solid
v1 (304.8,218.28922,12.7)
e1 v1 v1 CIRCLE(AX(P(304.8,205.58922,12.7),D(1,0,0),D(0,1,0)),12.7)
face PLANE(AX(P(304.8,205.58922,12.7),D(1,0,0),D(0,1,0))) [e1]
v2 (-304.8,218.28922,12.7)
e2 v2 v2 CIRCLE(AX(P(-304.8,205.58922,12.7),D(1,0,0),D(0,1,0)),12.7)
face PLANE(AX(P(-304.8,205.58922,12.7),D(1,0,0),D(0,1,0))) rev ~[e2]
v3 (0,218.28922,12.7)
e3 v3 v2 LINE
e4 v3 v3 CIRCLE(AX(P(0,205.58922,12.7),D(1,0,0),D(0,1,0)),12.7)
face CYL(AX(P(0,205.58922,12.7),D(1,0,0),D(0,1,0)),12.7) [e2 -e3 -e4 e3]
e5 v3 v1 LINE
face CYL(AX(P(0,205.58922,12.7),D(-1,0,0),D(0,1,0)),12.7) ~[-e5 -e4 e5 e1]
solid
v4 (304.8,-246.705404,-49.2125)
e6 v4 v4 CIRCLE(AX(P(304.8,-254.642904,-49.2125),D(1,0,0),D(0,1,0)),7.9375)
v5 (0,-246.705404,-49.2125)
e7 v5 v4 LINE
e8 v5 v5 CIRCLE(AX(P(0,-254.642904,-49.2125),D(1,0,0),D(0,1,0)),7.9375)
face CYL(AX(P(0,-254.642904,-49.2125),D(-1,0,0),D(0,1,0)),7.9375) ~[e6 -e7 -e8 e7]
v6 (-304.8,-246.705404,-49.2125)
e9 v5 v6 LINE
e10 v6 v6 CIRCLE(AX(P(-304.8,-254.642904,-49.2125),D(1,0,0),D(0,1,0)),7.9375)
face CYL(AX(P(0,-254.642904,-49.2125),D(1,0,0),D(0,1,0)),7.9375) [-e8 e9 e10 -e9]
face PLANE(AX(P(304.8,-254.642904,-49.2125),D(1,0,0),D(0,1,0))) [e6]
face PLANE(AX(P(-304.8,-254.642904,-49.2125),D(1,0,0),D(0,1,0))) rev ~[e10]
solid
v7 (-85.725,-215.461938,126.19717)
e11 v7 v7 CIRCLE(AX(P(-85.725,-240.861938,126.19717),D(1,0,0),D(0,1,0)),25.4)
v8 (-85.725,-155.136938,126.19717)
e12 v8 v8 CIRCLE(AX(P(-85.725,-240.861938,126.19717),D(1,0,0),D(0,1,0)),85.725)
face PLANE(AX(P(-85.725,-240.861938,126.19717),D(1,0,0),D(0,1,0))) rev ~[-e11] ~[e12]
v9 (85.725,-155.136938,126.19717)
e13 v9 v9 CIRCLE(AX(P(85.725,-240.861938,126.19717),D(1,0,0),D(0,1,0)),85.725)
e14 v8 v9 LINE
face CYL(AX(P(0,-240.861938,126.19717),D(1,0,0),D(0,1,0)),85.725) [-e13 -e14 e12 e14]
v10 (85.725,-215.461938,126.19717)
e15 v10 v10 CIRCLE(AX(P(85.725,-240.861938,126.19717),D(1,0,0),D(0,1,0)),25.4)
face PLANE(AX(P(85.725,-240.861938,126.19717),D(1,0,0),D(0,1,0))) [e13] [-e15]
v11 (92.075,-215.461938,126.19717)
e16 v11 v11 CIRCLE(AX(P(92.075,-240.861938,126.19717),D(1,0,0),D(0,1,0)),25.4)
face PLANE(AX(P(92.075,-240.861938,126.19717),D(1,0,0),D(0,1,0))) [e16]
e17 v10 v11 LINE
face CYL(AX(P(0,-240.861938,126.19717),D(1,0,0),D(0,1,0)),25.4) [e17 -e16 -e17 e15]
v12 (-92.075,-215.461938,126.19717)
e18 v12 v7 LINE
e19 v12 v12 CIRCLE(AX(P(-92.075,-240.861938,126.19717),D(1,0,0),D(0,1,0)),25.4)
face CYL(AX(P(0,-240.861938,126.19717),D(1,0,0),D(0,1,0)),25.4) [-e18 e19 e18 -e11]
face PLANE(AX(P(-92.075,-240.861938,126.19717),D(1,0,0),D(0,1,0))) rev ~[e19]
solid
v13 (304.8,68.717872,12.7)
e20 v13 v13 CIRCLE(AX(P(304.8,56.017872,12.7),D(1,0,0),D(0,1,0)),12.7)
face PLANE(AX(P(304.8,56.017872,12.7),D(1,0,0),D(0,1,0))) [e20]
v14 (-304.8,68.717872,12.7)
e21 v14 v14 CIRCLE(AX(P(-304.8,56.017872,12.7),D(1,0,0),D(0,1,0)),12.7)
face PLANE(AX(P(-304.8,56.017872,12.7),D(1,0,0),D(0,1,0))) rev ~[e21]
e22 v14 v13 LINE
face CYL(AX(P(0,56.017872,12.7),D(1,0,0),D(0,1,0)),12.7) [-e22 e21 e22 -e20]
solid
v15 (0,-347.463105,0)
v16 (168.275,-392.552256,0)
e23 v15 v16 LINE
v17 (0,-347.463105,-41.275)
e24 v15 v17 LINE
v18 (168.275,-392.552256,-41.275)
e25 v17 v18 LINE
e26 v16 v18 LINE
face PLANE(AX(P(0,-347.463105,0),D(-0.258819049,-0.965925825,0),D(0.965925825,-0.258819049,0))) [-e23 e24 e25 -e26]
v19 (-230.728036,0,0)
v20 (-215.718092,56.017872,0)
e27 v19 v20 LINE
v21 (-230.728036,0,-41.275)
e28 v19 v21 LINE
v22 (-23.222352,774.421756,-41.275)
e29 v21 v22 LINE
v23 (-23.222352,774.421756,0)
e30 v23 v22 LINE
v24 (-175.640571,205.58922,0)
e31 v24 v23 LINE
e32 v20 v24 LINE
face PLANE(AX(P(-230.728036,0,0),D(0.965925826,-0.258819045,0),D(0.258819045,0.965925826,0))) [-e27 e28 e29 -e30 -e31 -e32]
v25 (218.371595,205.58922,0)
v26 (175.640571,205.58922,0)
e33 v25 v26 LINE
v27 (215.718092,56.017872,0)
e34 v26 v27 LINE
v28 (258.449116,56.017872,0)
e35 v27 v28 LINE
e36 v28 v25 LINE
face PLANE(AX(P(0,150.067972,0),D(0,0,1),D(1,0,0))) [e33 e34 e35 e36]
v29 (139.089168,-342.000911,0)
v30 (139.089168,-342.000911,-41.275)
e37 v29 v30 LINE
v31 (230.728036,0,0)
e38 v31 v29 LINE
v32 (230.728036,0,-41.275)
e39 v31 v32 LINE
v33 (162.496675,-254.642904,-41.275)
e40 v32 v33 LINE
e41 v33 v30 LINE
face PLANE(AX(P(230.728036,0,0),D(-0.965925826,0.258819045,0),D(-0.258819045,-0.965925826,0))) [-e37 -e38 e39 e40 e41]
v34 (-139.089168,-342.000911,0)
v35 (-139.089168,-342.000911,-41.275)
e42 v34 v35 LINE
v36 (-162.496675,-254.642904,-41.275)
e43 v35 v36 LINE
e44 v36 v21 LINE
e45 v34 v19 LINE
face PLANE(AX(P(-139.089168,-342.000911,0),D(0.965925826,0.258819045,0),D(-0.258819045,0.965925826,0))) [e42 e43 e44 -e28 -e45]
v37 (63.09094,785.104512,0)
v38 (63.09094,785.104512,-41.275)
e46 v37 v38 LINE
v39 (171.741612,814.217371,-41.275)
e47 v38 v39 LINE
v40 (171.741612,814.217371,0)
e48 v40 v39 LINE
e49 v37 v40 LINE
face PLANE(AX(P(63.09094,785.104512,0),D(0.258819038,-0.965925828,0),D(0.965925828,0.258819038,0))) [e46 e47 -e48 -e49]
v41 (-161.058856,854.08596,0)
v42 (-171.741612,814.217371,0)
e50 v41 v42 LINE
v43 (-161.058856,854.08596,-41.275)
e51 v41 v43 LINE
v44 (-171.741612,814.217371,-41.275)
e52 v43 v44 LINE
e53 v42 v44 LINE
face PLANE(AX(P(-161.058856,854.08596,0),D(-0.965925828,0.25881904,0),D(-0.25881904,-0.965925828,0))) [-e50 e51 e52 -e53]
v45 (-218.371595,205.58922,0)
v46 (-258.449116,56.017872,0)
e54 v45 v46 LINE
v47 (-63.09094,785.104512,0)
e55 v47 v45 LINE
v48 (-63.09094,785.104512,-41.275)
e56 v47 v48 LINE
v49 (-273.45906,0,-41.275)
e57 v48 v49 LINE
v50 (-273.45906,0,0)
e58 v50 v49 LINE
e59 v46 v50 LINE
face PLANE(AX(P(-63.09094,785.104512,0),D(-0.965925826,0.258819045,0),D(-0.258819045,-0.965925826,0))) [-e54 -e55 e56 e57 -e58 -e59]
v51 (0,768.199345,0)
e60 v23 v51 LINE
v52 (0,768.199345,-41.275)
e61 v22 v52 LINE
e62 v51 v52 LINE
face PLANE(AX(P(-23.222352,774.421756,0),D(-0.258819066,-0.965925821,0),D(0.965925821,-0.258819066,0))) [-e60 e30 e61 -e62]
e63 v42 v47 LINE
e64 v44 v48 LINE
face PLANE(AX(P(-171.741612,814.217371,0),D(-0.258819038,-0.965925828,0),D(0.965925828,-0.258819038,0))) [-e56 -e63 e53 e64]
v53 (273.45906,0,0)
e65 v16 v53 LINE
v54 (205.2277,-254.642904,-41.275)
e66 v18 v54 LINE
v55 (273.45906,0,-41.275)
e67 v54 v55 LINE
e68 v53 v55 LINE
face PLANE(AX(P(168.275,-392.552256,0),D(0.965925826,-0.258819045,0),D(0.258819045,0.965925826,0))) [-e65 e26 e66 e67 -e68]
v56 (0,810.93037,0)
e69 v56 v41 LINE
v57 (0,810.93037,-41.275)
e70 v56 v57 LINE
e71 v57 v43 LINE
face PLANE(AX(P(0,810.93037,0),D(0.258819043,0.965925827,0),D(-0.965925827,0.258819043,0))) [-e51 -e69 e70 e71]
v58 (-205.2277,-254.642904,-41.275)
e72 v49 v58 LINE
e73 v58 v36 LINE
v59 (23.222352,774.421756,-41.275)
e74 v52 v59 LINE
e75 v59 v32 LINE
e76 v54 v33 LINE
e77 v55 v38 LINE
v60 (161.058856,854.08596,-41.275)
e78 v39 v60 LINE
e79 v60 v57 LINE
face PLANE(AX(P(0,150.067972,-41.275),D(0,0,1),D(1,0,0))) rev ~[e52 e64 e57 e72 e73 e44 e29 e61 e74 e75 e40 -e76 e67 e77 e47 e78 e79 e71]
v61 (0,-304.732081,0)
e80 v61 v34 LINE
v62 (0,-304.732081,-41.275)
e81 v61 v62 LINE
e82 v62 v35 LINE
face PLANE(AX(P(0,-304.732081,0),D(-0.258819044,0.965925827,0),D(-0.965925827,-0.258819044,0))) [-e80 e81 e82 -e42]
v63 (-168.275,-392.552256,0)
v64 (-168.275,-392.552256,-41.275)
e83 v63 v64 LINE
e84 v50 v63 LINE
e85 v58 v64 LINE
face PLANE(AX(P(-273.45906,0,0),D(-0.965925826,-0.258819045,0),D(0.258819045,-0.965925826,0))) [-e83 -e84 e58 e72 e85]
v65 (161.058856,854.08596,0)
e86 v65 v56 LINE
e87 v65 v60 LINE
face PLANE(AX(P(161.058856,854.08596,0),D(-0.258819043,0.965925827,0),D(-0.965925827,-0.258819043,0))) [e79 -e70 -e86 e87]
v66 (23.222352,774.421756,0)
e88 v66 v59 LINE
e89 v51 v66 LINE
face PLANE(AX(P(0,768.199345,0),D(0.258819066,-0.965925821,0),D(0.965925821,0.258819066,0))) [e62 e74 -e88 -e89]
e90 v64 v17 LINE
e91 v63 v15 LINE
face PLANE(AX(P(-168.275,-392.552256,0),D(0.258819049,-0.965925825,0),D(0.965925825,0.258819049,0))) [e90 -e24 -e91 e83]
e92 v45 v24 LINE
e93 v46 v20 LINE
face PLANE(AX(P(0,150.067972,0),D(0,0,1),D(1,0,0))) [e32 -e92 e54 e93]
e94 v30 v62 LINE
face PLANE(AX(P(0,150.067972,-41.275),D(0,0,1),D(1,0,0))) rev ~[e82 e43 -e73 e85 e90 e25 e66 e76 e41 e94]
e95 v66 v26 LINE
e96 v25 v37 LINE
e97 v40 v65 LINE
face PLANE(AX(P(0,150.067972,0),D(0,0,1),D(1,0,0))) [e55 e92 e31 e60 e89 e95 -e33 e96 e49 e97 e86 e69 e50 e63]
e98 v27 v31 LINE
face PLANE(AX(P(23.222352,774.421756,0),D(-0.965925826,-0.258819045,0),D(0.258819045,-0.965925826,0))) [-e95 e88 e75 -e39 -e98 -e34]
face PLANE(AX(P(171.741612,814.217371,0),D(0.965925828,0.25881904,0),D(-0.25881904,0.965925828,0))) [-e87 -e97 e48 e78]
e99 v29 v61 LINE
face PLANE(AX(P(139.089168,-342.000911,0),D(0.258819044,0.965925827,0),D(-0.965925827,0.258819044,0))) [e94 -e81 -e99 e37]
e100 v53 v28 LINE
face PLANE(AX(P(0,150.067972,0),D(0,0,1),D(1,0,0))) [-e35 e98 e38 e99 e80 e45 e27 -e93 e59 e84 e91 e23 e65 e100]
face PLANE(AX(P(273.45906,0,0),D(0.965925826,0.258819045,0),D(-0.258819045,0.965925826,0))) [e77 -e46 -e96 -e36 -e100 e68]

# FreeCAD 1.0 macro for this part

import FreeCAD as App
import Part
import Sketcher

V = App.Vector
Q = App.Units.Quantity

doc = App.newDocument("Part")
params = doc.addObject("Spreadsheet::Sheet", "Params")
for row, (alias, value) in enumerate([
    ("sketch1_length", "16 in"),
    ("sketch1_length2", "32 in"),
    ("sketch1_length3", "1.625 in"),
    ("pad1_length", "1.625 in"),
    ("sketch2_diameter", "1 in"),
    ("sketch2_diameter2", "0.625 in"),
    ("pad2_length", "24 in"),
    ("sketch3_diameter", "2 in"),
    ("sketch3_diameter2", "6.75 in"),
    ("pad3_length", "6.75 in"),
    ("sketch4_diameter", "2 in"),
    ("pad4_length", "7.25 in"),
], start=1):
    params.set(f"A{row}", alias)
    params.set(f"B{row}", "=" + value)
    params.setAlias(f"B{row}", alias)

body = doc.addObject("PartDesign::Body", "Body")
body.AllowCompound = True

sketch1 = body.newObject("Sketcher::SketchObject", "Sketch")
sketch1.AttachmentSupport = (doc.getObject("XY_Plane"), [""])
sketch1.MapMode = "FlatFace"
sketch1.addGeometry([
    Part.LineSegment(V(0, -347.463105, 0), V(168.275, -392.552256, 0)),
    Part.LineSegment(V(168.275, -392.552256, 0), V(273.45906, 0, 0)),
    Part.LineSegment(V(273.45906, 0, 0), V(63.09094, 785.104512, 0)),
    Part.LineSegment(V(63.09094, 785.104512, 0), V(171.741612, 814.217371, 0)),
    Part.LineSegment(V(171.741612, 814.217371, 0), V(161.058856, 854.08596, 0)),
    Part.LineSegment(V(161.058856, 854.08596, 0), V(0, 810.93037, 0)),
    Part.LineSegment(V(0, 810.93037, 0), V(-161.058856, 854.08596, 0)),
    Part.LineSegment(V(-161.058856, 854.08596, 0), V(-171.741612, 814.217371, 0)),
    Part.LineSegment(V(-171.741612, 814.217371, 0), V(-63.09094, 785.104512, 0)),
    Part.LineSegment(V(-63.09094, 785.104512, 0), V(-273.45906, 0, 0)),
    Part.LineSegment(V(-273.45906, 0, 0), V(-168.275, -392.552256, 0)),
    Part.LineSegment(V(-168.275, -392.552256, 0), V(0, -347.463105, 0)),
    Part.LineSegment(V(23.222352, 774.421756, 0), V(230.728036, 0, 0)),
    Part.LineSegment(V(230.728036, 0, 0), V(139.089168, -342.000911, 0)),
    Part.LineSegment(V(139.089168, -342.000911, 0), V(0, -304.732081, 0)),
    Part.LineSegment(V(0, -304.732081, 0), V(-139.089168, -342.000911, 0)),
    Part.LineSegment(V(-139.089168, -342.000911, 0), V(-230.728036, 0, 0)),
    Part.LineSegment(V(-230.728036, 0, 0), V(-23.222352, 774.421756, 0)),
    Part.LineSegment(V(-23.222352, 774.421756, 0), V(0, 768.199345, 0)),
    Part.LineSegment(V(0, 768.199345, 0), V(23.222352, 774.421756, 0)),
], False)
sketch1.addConstraint([
    Sketcher.Constraint("Coincident", 0, 2, 1, 1),
    Sketcher.Constraint("Coincident", 1, 2, 2, 1),
    Sketcher.Constraint("Coincident", 2, 2, 3, 1),
    Sketcher.Constraint("Coincident", 3, 2, 4, 1),
    Sketcher.Constraint("Coincident", 4, 2, 5, 1),
    Sketcher.Constraint("Coincident", 5, 2, 6, 1),
    Sketcher.Constraint("Coincident", 6, 2, 7, 1),
    Sketcher.Constraint("Coincident", 7, 2, 8, 1),
    Sketcher.Constraint("Coincident", 8, 2, 9, 1),
    Sketcher.Constraint("Coincident", 9, 2, 10, 1),
    Sketcher.Constraint("Coincident", 10, 2, 11, 1),
    Sketcher.Constraint("Coincident", 11, 2, 0, 1),
    Sketcher.Constraint("Coincident", 12, 2, 13, 1),
    Sketcher.Constraint("Coincident", 13, 2, 14, 1),
    Sketcher.Constraint("Coincident", 14, 2, 15, 1),
    Sketcher.Constraint("Coincident", 15, 2, 16, 1),
    Sketcher.Constraint("Coincident", 16, 2, 17, 1),
    Sketcher.Constraint("Coincident", 17, 2, 18, 1),
    Sketcher.Constraint("Coincident", 18, 2, 19, 1),
    Sketcher.Constraint("Coincident", 19, 2, 12, 1),
    Sketcher.Constraint("Symmetric", 1, 2, 9, 2, -1, 1),
    Sketcher.Constraint("Symmetric", 12, 2, 16, 2, -1, 1),
    Sketcher.Constraint("Symmetric", 4, 2, 6, 2, -2),
    Sketcher.Constraint("Symmetric", 3, 2, 7, 2, -2),
    Sketcher.Constraint("Symmetric", 2, 2, 8, 2, -2),
    Sketcher.Constraint("Symmetric", 0, 2, 10, 2, -2),
    Sketcher.Constraint("Symmetric", 13, 2, 15, 2, -2),
    Sketcher.Constraint("Symmetric", 17, 2, 19, 2, -2),
    Sketcher.Constraint("PointOnObject", 1, 2, -1),
    Sketcher.Constraint("PointOnObject", 5, 2, -2),
    Sketcher.Constraint("PointOnObject", 11, 2, -2),
    Sketcher.Constraint("PointOnObject", 12, 2, -1),
    Sketcher.Constraint("PointOnObject", 14, 2, -2),
    Sketcher.Constraint("PointOnObject", 18, 2, -2),
    Sketcher.Constraint("Perpendicular", 0, 1),
    Sketcher.Constraint("Perpendicular", 2, 3),
    Sketcher.Constraint("Perpendicular", 3, 4),
    Sketcher.Constraint("Perpendicular", 4, 5),
    Sketcher.Constraint("Perpendicular", 1, 6),
    Sketcher.Constraint("Perpendicular", 11, 12),
    Sketcher.Constraint("Parallel", 9, 13),
    Sketcher.Constraint("Perpendicular", 13, 14),
    Sketcher.Constraint("Perpendicular", 17, 18),
    Sketcher.Constraint("Distance", 1, Q("16 in")),
    Sketcher.Constraint("Distance", 2, Q("32 in")),
    Sketcher.Constraint("Angle", 0, Q("-15 deg")),
    Sketcher.Constraint("DistanceX", 9, 2, 2, 2, Q("13.25 in")),
    Sketcher.Constraint("Distance", 4, Q("1.625 in")),
    Sketcher.Constraint("DistanceX", -1, 1, 4, 2, Q("6.3408998 in")),
    Sketcher.Constraint("Distance", 18, Q("24.041548 mm")),
    Sketcher.Constraint("DistanceX", -1, 1, 13, 2, Q("139.089168 mm")),
    Sketcher.Constraint("DistanceY", 13, 2, -1, 1, Q("342.000911 mm")),
])
sketch1.setExpression("Constraints[43]", "Params.sketch1_length")
sketch1.setExpression("Constraints[44]", "Params.sketch1_length2")
sketch1.setExpression("Constraints[47]", "Params.sketch1_length3")
pad1 = body.newObject("PartDesign::Pad", "Pad")
pad1.Profile = sketch1
pad1.setExpression("Length", "Params.pad1_length")
pad1.Reversed = True

sketch2 = body.newObject("Sketcher::SketchObject", "Sketch001")
sketch2.AttachmentSupport = (doc.getObject("YZ_Plane"), [""])
sketch2.MapMode = "FlatFace"
sketch2.addGeometry([
    Part.Circle(V(205.58922, 12.7, 0), V(0, 0, 1), 12.7),
    Part.Circle(V(-254.642904, -49.2125, 0), V(0, 0, 1), 7.9375),
    Part.Circle(V(56.017872, 12.7, 0), V(0, 0, 1), 12.7),
], False)
sketch2.addConstraint([
    Sketcher.Constraint("Equal", 0, 2),
    Sketcher.Constraint("Horizontal", 0, 3, 2, 3),
    Sketcher.Constraint("Diameter", 0, Q("1 in")),
    Sketcher.Constraint("Diameter", 1, Q("0.625 in")),
    Sketcher.Constraint("DistanceY", -1, 1, 0, 3, Q("0.5 in")),
    Sketcher.Constraint("DistanceY", 1, 3, -1, 1, Q("1.9375 in")),
    Sketcher.Constraint("DistanceX", -1, 1, 0, 3, Q("205.58922 mm")),
    Sketcher.Constraint("DistanceX", -1, 1, 2, 3, Q("56.017872 mm")),
    Sketcher.Constraint("DistanceX", 1, 3, -1, 1, Q("254.642904 mm")),
])
sketch2.setExpression("Constraints[2]", "Params.sketch2_diameter")
sketch2.setExpression("Constraints[3]", "Params.sketch2_diameter2")
pad2 = body.newObject("PartDesign::Pad", "Pad001")
pad2.Profile = sketch2
pad2.setExpression("Length", "Params.pad2_length")
pad2.Midplane = True
body2 = doc.addObject("PartDesign::Body", "Body001")

sketch3 = body2.newObject("Sketcher::SketchObject", "Sketch002")
sketch3.AttachmentSupport = (doc.getObject("YZ_Plane001"), [""])
sketch3.MapMode = "FlatFace"
sketch3.addGeometry([
    Part.Circle(V(-240.861938, 126.19717, 0), V(0, 0, 1), 85.725),
    Part.Circle(V(-240.861938, 126.19717, 0), V(0, 0, 1), 25.4),
], False)
sketch3.addConstraint([
    Sketcher.Constraint("Coincident", 1, 3, 0, 3),
    Sketcher.Constraint("Diameter", 1, Q("2 in")),
    Sketcher.Constraint("Diameter", 0, Q("6.75 in")),
    Sketcher.Constraint("DistanceX", 0, 3, -1, 1, Q("240.861938 mm")),
    Sketcher.Constraint("DistanceY", -1, 1, 0, 3, Q("126.19717 mm")),
])
sketch3.setExpression("Constraints[1]", "Params.sketch3_diameter")
sketch3.setExpression("Constraints[2]", "Params.sketch3_diameter2")
pad3 = body2.newObject("PartDesign::Pad", "Pad002")
pad3.Profile = sketch3
pad3.setExpression("Length", "Params.pad3_length")
pad3.Midplane = True

sketch4 = body2.newObject("Sketcher::SketchObject", "Sketch003")
sketch4.AttachmentSupport = (doc.getObject("YZ_Plane001"), [""])
sketch4.MapMode = "FlatFace"
sketch4.addGeometry(Part.Circle(V(-240.861938, 126.19717, 0), V(0, 0, 1), 25.4), False)
sketch4.addConstraint([
    Sketcher.Constraint("Diameter", 0, Q("2 in")),
    Sketcher.Constraint("DistanceX", 0, 3, -1, 1, Q("240.861938 mm")),
    Sketcher.Constraint("DistanceY", -1, 1, 0, 3, Q("126.19717 mm")),
])
sketch4.setExpression("Constraints[0]", "Params.sketch4_diameter")
pad4 = body2.newObject("PartDesign::Pad", "Pad003")
pad4.Profile = sketch4
pad4.setExpression("Length", "Params.pad4_length")
pad4.Midplane = True

doc.recompute()
